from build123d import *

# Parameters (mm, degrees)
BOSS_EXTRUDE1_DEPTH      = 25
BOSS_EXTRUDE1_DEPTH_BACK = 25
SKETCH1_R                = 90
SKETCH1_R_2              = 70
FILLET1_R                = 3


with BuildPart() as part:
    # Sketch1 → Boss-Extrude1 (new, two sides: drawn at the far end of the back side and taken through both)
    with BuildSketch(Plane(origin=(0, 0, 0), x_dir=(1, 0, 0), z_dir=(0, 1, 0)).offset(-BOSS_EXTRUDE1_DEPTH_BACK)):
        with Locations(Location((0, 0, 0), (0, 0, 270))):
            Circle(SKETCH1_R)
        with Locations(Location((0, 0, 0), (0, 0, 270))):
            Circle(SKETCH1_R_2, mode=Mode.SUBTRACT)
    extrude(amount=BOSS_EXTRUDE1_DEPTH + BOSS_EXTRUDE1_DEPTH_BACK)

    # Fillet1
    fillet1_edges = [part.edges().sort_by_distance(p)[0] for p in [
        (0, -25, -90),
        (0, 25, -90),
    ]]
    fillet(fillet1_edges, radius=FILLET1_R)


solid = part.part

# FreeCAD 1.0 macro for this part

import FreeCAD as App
import Part
import Sketcher
Q = App.Units.Quantity


def edges_at(feature, points):
    """Names of the edges that pass closest to the given points."""
    edges = feature.Shape.Edges
    near = lambda p: min(range(len(edges)), key=lambda i: edges[i].distToShape(Part.Vertex(*p))[0])
    return sorted({f"Edge{near(p) + 1}" for p in points})

doc = App.newDocument("Part")
params = doc.addObject("Spreadsheet::Sheet", "Params")
for row, (alias, value) in enumerate([
    ("sketch1_diameter", "180 mm"),
    ("sketch1_diameter2", "140 mm"),
    ("pad1_length", "25 mm"),
    ("pad1_length2", "25 mm"),
    ("fillet_radius", "3 mm"),
], start=1):
    params.set(f"A{row}", alias)
    params.set(f"B{row}", "=" + value)
    params.setAlias(f"B{row}", alias)

body = doc.addObject("PartDesign::Body", "Body")

sketch1 = body.newObject("Sketcher::SketchObject", "Sketch")
sketch1.AttachmentSupport = (doc.getObject("XZ_Plane"), [""])
sketch1.MapMode = "FlatFace"
sketch1.addGeometry(Part.Circle(App.Vector(0, 0, 0), App.Vector(0, 0, 1), 90), False)
sketch1.addGeometry(Part.Circle(App.Vector(0, 0, 0), App.Vector(0, 0, 1), 70), False)
sketch1.addConstraint(Sketcher.Constraint("Coincident", 0, 3, -1, 1))
sketch1.addConstraint(Sketcher.Constraint("Coincident", 1, 3, -1, 1))
sketch1.addConstraint(Sketcher.Constraint("Diameter", 0, Q("180 mm")))
sketch1.addConstraint(Sketcher.Constraint("Diameter", 1, Q("140 mm")))
sketch1.setExpression("Constraints[2]", "Params.sketch1_diameter")
sketch1.setExpression("Constraints[3]", "Params.sketch1_diameter2")
pad1 = body.newObject("PartDesign::Pad", "Pad")
pad1.Profile = sketch1
pad1.Type = "TwoLengths"
pad1.setExpression("Length", "Params.pad1_length")
pad1.setExpression("Length2", "Params.pad1_length2")
pad1.Reversed = True
doc.recompute()

fillet = body.newObject("PartDesign::Fillet", "Fillet")
fillet.Base = (pad1, edges_at(pad1, [(0, -25, -90), (0, 25, -90)]))
fillet.setExpression("Radius", "Params.fillet_radius")

doc.recompute()
